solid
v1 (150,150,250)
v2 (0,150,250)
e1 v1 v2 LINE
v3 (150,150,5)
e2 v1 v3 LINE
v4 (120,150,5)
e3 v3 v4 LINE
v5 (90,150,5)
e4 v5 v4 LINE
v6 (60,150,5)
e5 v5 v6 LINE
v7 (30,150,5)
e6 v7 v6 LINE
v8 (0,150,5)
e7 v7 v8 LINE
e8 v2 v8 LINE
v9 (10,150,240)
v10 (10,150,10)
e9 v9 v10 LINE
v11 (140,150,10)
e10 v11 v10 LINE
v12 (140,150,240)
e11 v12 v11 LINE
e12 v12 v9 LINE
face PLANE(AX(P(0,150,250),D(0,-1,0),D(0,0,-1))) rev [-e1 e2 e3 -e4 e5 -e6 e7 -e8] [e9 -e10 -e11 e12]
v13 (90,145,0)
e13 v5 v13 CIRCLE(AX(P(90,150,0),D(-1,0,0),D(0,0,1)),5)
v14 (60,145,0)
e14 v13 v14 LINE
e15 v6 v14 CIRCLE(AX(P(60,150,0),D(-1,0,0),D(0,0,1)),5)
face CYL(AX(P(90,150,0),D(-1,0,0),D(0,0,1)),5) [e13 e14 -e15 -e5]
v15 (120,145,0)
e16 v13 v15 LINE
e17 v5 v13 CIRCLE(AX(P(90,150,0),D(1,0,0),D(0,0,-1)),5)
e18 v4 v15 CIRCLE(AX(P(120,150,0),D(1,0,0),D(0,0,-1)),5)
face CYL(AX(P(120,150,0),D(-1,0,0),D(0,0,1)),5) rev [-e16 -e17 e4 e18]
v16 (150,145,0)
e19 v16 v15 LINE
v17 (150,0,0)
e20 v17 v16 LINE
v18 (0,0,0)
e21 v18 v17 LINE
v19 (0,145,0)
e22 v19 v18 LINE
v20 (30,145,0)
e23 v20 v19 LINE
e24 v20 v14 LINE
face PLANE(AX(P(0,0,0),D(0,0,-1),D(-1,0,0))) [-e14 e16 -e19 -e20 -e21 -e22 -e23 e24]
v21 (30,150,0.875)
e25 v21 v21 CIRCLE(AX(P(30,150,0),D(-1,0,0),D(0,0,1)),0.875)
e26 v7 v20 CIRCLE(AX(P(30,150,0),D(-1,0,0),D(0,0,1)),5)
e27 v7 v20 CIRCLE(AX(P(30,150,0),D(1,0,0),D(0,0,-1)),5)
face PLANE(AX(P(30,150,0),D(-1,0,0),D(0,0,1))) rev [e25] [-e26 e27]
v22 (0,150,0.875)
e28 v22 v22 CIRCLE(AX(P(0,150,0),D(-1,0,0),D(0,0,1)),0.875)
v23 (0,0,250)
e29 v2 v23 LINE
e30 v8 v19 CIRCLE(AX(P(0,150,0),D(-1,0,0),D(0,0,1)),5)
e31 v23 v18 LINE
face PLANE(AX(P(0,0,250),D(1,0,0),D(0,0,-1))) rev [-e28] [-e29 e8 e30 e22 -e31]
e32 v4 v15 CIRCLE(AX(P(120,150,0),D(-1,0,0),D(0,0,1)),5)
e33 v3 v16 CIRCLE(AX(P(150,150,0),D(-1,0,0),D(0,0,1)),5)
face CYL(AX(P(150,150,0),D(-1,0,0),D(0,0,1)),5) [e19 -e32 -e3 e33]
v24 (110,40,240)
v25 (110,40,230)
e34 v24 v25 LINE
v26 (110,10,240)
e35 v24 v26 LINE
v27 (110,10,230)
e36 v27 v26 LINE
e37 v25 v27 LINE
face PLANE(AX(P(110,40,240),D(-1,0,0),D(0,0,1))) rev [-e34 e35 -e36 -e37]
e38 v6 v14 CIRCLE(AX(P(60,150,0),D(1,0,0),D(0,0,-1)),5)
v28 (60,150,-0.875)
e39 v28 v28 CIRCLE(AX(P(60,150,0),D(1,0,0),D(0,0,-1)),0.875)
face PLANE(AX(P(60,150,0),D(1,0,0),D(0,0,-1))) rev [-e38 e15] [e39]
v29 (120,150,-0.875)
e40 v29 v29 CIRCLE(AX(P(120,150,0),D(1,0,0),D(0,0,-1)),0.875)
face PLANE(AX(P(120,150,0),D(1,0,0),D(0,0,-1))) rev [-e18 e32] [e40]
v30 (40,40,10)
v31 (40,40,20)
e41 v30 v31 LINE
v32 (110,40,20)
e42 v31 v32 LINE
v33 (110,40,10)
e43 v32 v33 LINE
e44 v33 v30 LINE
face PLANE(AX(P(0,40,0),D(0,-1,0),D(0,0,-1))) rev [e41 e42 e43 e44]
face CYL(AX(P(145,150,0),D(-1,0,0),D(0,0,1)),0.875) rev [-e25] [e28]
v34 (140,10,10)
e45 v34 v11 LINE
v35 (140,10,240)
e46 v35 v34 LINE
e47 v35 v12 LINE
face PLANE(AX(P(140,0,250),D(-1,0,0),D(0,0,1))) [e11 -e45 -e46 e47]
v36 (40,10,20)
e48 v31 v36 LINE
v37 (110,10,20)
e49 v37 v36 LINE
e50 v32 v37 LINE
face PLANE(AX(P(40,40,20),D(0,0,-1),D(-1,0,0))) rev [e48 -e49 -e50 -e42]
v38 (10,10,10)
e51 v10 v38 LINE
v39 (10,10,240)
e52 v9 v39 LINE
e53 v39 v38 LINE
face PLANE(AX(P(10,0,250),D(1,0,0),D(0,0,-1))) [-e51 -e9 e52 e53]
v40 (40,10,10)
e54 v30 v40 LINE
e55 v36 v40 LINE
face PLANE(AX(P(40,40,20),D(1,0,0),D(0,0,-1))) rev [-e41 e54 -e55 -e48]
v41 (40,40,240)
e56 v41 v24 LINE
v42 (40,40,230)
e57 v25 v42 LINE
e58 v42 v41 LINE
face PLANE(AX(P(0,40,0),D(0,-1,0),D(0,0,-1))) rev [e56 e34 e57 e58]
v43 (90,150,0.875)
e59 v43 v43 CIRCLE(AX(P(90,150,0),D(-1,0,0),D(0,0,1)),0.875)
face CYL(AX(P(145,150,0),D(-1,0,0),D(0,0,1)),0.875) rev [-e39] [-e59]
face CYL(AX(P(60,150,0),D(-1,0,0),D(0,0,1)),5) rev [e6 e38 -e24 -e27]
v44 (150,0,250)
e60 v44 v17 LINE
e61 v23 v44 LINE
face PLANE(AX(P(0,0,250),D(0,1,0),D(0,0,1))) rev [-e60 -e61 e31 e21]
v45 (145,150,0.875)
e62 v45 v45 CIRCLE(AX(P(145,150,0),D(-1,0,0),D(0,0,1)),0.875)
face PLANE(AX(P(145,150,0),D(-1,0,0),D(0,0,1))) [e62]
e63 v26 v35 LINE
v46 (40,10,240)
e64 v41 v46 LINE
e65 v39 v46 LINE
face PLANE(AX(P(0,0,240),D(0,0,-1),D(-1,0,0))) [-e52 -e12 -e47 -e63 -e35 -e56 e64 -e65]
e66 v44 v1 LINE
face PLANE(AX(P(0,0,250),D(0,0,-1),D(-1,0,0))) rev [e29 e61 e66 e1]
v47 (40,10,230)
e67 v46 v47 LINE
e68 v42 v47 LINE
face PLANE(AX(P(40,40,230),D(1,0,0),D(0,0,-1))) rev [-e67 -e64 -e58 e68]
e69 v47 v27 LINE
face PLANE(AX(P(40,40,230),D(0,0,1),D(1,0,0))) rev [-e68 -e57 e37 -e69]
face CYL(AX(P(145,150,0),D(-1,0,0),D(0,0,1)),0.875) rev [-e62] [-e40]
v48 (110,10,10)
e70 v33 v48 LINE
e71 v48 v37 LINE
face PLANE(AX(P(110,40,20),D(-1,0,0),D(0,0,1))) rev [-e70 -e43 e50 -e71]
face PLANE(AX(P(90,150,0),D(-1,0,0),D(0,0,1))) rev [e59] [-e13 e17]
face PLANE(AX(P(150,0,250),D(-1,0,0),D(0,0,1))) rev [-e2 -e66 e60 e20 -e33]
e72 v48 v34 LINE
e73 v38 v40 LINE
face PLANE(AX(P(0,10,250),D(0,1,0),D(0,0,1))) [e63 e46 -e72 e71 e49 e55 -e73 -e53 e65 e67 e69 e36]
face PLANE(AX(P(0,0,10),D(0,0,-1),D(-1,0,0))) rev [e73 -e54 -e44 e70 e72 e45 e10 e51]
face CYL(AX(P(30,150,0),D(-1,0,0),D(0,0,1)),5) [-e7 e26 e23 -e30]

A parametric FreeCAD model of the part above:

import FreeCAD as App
import Part
import Sketcher
from FreeCAD import Vector
Q = App.Units.Quantity


def faces_at(feature, points):
    """Names of the faces that lie closest to the given points."""
    faces = feature.Shape.Faces
    near = lambda p: min(range(len(faces)), key=lambda i: faces[i].distToShape(Part.Vertex(*p))[0])
    return sorted({f"Face{near(p) + 1}" for p in points})

doc = App.newDocument("Part")
params = doc.addObject("Spreadsheet::Sheet", "Params")
for row, (alias, value) in enumerate([
    ("sketch1_width", "150 mm"),
    ("pad1_length", "250 mm"),
    ("thickness_wall", "10 mm"),
    ("sketch2_width", "120 mm"),
    ("sketch2_width2", "110 mm"),
    ("sketch2_height", "220 mm"),
    ("sketch2_height2", "210 mm"),
    ("pad2_length", "0.001 mm"),
    ("sketch3_width", "70 mm"),
    ("sketch3_height", "10 mm"),
    ("pad3_length", "40 mm"),
    ("sketch4_diameter", "10 mm"),
    ("pad4_length", "30 mm"),
    ("sketch5_diameter", "10 mm"),
    ("pocket1_length", "30 mm"),
    ("sketch6_diameter", "10 mm"),
    ("pad5_length", "30 mm"),
    ("sketch7_diameter", "10 mm"),
    ("pocket2_length", "30 mm"),
    ("sketch8_diameter", "10 mm"),
    ("pad6_length", "30 mm"),
    ("sketch9_diameter", "1.75 mm"),
    ("pocket3_length", "145 mm"),
], start=1):
    params.set(f"A{row}", alias)
    params.set(f"B{row}", "=" + value)
    params.setAlias(f"B{row}", alias)

body = doc.addObject("PartDesign::Body", "Body")

sketch1 = doc.addObject("Sketcher::SketchObject", "Sketch")
body.addObject(sketch1)
sketch1.AttachmentSupport = (doc.XY_Plane, [""])
sketch1.MapMode = "FlatFace"
sketch1.addGeometry([
    Part.LineSegment(Vector(0, 150, 0), Vector(0, 0, 0)),
    Part.LineSegment(Vector(0, 0, 0), Vector(150, 0, 0)),
    Part.LineSegment(Vector(150, 0, 0), Vector(150, 150, 0)),
    Part.LineSegment(Vector(150, 150, 0), Vector(0, 150, 0)),
], False)
sketch1.addConstraint([
    Sketcher.Constraint("Coincident", 0, 2, 1, 1),
    Sketcher.Constraint("Coincident", 1, 2, 2, 1),
    Sketcher.Constraint("Coincident", 2, 2, 3, 1),
    Sketcher.Constraint("Coincident", 3, 2, 0, 1),
    Sketcher.Constraint("Vertical", 0),
    Sketcher.Constraint("Horizontal", 1),
    Sketcher.Constraint("Vertical", 2),
    Sketcher.Constraint("Horizontal", 3),
    Sketcher.Constraint("Coincident", 0, 2, -1, 1),
    Sketcher.Constraint("Equal", 3, 0),
    Sketcher.Constraint("DistanceX", 1, 1, 1, 2, Q("150 mm")),
])
sketch1.setExpression("Constraints[10]", "Params.sketch1_width")
pad1 = doc.addObject("PartDesign::Pad", "Pad")
body.addObject(pad1)
pad1.Profile = sketch1
pad1.setExpression("Length", "Params.pad1_length")
doc.recompute()

thickness = doc.addObject("PartDesign::Thickness", "Thickness")
body.addObject(thickness)
thickness.Base = (pad1, faces_at(pad1, [(75, 150, 125)]))
thickness.setExpression("Value", "Params.thickness_wall")
thickness.Reversed = True
thickness.Join = "Intersection"

sketch2 = doc.addObject("Sketcher::SketchObject", "Sketch001")
body.addObject(sketch2)
sketch2.AttachmentSupport = (doc.XZ_Plane, [""])
sketch2.MapMode = "FlatFace"
sketch2.addGeometry([
    Part.LineSegment(Vector(15, 15, 0), Vector(15, 235, 0)),
    Part.LineSegment(Vector(15, 235, 0), Vector(135, 235, 0)),
    Part.LineSegment(Vector(135, 235, 0), Vector(135, 15, 0)),
    Part.LineSegment(Vector(135, 15, 0), Vector(15, 15, 0)),
    Part.LineSegment(Vector(130, 230, 0), Vector(20, 230, 0)),
    Part.LineSegment(Vector(20, 230, 0), Vector(20, 20, 0)),
    Part.LineSegment(Vector(20, 20, 0), Vector(130, 20, 0)),
    Part.LineSegment(Vector(130, 20, 0), Vector(130, 230, 0)),
], False)
sketch2.addConstraint([
    Sketcher.Constraint("Coincident", 0, 2, 1, 1),
    Sketcher.Constraint("Coincident", 1, 2, 2, 1),
    Sketcher.Constraint("Coincident", 2, 2, 3, 1),
    Sketcher.Constraint("Coincident", 3, 2, 0, 1),
    Sketcher.Constraint("Coincident", 4, 2, 5, 1),
    Sketcher.Constraint("Coincident", 5, 2, 6, 1),
    Sketcher.Constraint("Coincident", 6, 2, 7, 1),
    Sketcher.Constraint("Coincident", 7, 2, 4, 1),
    Sketcher.Constraint("Vertical", 0),
    Sketcher.Constraint("Horizontal", 1),
    Sketcher.Constraint("Vertical", 2),
    Sketcher.Constraint("Horizontal", 3),
    Sketcher.Constraint("Horizontal", 4),
    Sketcher.Constraint("Vertical", 5),
    Sketcher.Constraint("Horizontal", 6),
    Sketcher.Constraint("Vertical", 7),
    Sketcher.Constraint("DistanceX", 1, 1, 1, 2, Q("120 mm")),
    Sketcher.Constraint("DistanceX", 4, 2, 4, 1, Q("110 mm")),
    Sketcher.Constraint("DistanceY", 0, 1, 0, 2, Q("220 mm")),
    Sketcher.Constraint("DistanceY", 5, 2, 5, 1, Q("210 mm")),
    Sketcher.Constraint("DistanceX", -1, 1, 0, 2, Q("15 mm")),
    Sketcher.Constraint("DistanceY", -1, 1, 0, 2, Q("235 mm")),
    Sketcher.Constraint("DistanceX", -1, 1, 4, 2, Q("20 mm")),
    Sketcher.Constraint("DistanceY", -1, 1, 4, 2, Q("230 mm")),
])
sketch2.setExpression("Constraints[16]", "Params.sketch2_width")
sketch2.setExpression("Constraints[17]", "Params.sketch2_width2")
sketch2.setExpression("Constraints[18]", "Params.sketch2_height")
sketch2.setExpression("Constraints[19]", "Params.sketch2_height2")
pad2 = doc.addObject("PartDesign::Pad", "Pad001")
body.addObject(pad2)
pad2.Profile = sketch2
pad2.setExpression("Length", "Params.pad2_length")
pad2.Reversed = True

sketch3 = doc.addObject("Sketcher::SketchObject", "Sketch002")
body.addObject(sketch3)
sketch3.AttachmentSupport = (doc.XZ_Plane, [""])
sketch3.MapMode = "FlatFace"
sketch3.addGeometry([
    Part.LineSegment(Vector(40, 230, 0), Vector(40, 240, 0)),
    Part.LineSegment(Vector(40, 240, 0), Vector(110, 240, 0)),
    Part.LineSegment(Vector(110, 240, 0), Vector(110, 230, 0)),
    Part.LineSegment(Vector(110, 230, 0), Vector(40, 230, 0)),
    Part.LineSegment(Vector(40, 10, 0), Vector(40, 20, 0)),
    Part.LineSegment(Vector(40, 20, 0), Vector(110, 20, 0)),
    Part.LineSegment(Vector(110, 20, 0), Vector(110, 10, 0)),
    Part.LineSegment(Vector(110, 10, 0), Vector(40, 10, 0)),
], False)
sketch3.addConstraint([
    Sketcher.Constraint("Coincident", 0, 2, 1, 1),
    Sketcher.Constraint("Coincident", 1, 2, 2, 1),
    Sketcher.Constraint("Coincident", 2, 2, 3, 1),
    Sketcher.Constraint("Coincident", 3, 2, 0, 1),
    Sketcher.Constraint("Coincident", 4, 2, 5, 1),
    Sketcher.Constraint("Coincident", 5, 2, 6, 1),
    Sketcher.Constraint("Coincident", 6, 2, 7, 1),
    Sketcher.Constraint("Coincident", 7, 2, 4, 1),
    Sketcher.Constraint("Vertical", 0),
    Sketcher.Constraint("Horizontal", 1),
    Sketcher.Constraint("Vertical", 2),
    Sketcher.Constraint("Horizontal", 3),
    Sketcher.Constraint("Vertical", 4),
    Sketcher.Constraint("Horizontal", 5),
    Sketcher.Constraint("Vertical", 6),
    Sketcher.Constraint("Horizontal", 7),
    Sketcher.Constraint("Vertical", 3, 2, 4, 2),
    Sketcher.Constraint("Vertical", 2, 2, 5, 2),
    Sketcher.Constraint("Equal", 2, 4),
    Sketcher.Constraint("DistanceX", 1, 1, 1, 2, Q("70 mm")),
    Sketcher.Constraint("DistanceY", 0, 1, 0, 2, Q("10 mm")),
    Sketcher.Constraint("DistanceX", -1, 1, 0, 2, Q("40 mm")),
    Sketcher.Constraint("DistanceY", -1, 1, 0, 2, Q("240 mm")),
    Sketcher.Constraint("DistanceY", -1, 1, 4, 2, Q("20 mm")),
])
sketch3.setExpression("Constraints[19]", "Params.sketch3_width")
sketch3.setExpression("Constraints[20]", "Params.sketch3_height")
pad3 = doc.addObject("PartDesign::Pad", "Pad002")
body.addObject(pad3)
pad3.Profile = sketch3
pad3.setExpression("Length", "Params.pad3_length")
pad3.Reversed = True

sketch4 = doc.addObject("Sketcher::SketchObject", "Sketch003")
body.addObject(sketch4)
sketch4.AttachmentSupport = (doc.YZ_Plane, [""])
sketch4.MapMode = "FlatFace"
sketch4.addGeometry(Part.Circle(Vector(150, 0, 0), Vector(0, 0, 1), 5), False)
sketch4.addConstraint([
    Sketcher.Constraint("PointOnObject", 0, 3, -1),
    Sketcher.Constraint("Diameter", 0, Q("10 mm")),
    Sketcher.Constraint("DistanceX", -1, 1, 0, 3, Q("150 mm")),
])
sketch4.setExpression("Constraints[1]", "Params.sketch4_diameter")
pad4 = doc.addObject("PartDesign::Pad", "Pad003")
body.addObject(pad4)
pad4.Profile = sketch4
pad4.setExpression("Length", "Params.pad4_length")

sketch5 = doc.addObject("Sketcher::SketchObject", "Sketch004")
body.addObject(sketch5)
sketch5.AttachmentSupport = (doc.YZ_Plane, [""])
sketch5.MapMode = "FlatFace"
sketch5.AttachmentOffset = App.Placement(Vector(0, 0, 30), App.Rotation())
sketch5.addGeometry(Part.Circle(Vector(150, 0, 0), Vector(0, 0, 1), 5), False)
sketch5.addConstraint([
    Sketcher.Constraint("PointOnObject", 0, 3, -1),
    Sketcher.Constraint("Diameter", 0, Q("10 mm")),
    Sketcher.Constraint("DistanceX", -1, 1, 0, 3, Q("150 mm")),
])
sketch5.setExpression("Constraints[1]", "Params.sketch5_diameter")
pocket1 = doc.addObject("PartDesign::Pocket", "Pocket")
body.addObject(pocket1)
pocket1.Profile = sketch5
pocket1.setExpression("Length", "Params.pocket1_length")
pocket1.Reversed = True

sketch6 = doc.addObject("Sketcher::SketchObject", "Sketch005")
body.addObject(sketch6)
sketch6.AttachmentSupport = (doc.YZ_Plane, [""])
sketch6.MapMode = "FlatFace"
sketch6.AttachmentOffset = App.Placement(Vector(0, 0, 60), App.Rotation())
sketch6.addGeometry(Part.Circle(Vector(150, 0, 0), Vector(0, 0, 1), 5), False)
sketch6.addConstraint([
    Sketcher.Constraint("PointOnObject", 0, 3, -1),
    Sketcher.Constraint("Diameter", 0, Q("10 mm")),
    Sketcher.Constraint("DistanceX", -1, 1, 0, 3, Q("150 mm")),
])
sketch6.setExpression("Constraints[1]", "Params.sketch6_diameter")
pad5 = doc.addObject("PartDesign::Pad", "Pad004")
body.addObject(pad5)
pad5.Profile = sketch6
pad5.setExpression("Length", "Params.pad5_length")

sketch7 = doc.addObject("Sketcher::SketchObject", "Sketch006")
body.addObject(sketch7)
sketch7.AttachmentSupport = (doc.YZ_Plane, [""])
sketch7.MapMode = "FlatFace"
sketch7.AttachmentOffset = App.Placement(Vector(0, 0, 90), App.Rotation())
sketch7.addGeometry(Part.Circle(Vector(150, 0, 0), Vector(0, 0, 1), 5), False)
sketch7.addConstraint([
    Sketcher.Constraint("PointOnObject", 0, 3, -1),
    Sketcher.Constraint("Diameter", 0, Q("10 mm")),
    Sketcher.Constraint("DistanceX", -1, 1, 0, 3, Q("150 mm")),
])
sketch7.setExpression("Constraints[1]", "Params.sketch7_diameter")
pocket2 = doc.addObject("PartDesign::Pocket", "Pocket001")
body.addObject(pocket2)
pocket2.Profile = sketch7
pocket2.setExpression("Length", "Params.pocket2_length")
pocket2.Reversed = True

sketch8 = doc.addObject("Sketcher::SketchObject", "Sketch007")
body.addObject(sketch8)
sketch8.AttachmentSupport = (doc.YZ_Plane, [""])
sketch8.MapMode = "FlatFace"
sketch8.AttachmentOffset = App.Placement(Vector(0, 0, 120), App.Rotation())
sketch8.addGeometry(Part.Circle(Vector(150, 0, 0), Vector(0, 0, 1), 5), False)
sketch8.addConstraint([
    Sketcher.Constraint("PointOnObject", 0, 3, -1),
    Sketcher.Constraint("Diameter", 0, Q("10 mm")),
    Sketcher.Constraint("DistanceX", -1, 1, 0, 3, Q("150 mm")),
])
sketch8.setExpression("Constraints[1]", "Params.sketch8_diameter")
pad6 = doc.addObject("PartDesign::Pad", "Pad005")
body.addObject(pad6)
pad6.Profile = sketch8
pad6.setExpression("Length", "Params.pad6_length")

sketch9 = doc.addObject("Sketcher::SketchObject", "Sketch008")
body.addObject(sketch9)
sketch9.AttachmentSupport = (doc.YZ_Plane, [""])
sketch9.MapMode = "FlatFace"
sketch9.addGeometry(Part.Circle(Vector(150, 0, 0), Vector(0, 0, 1), 0.9), False)
sketch9.addConstraint([
    Sketcher.Constraint("PointOnObject", 0, 3, -1),
    Sketcher.Constraint("Diameter", 0, Q("1.75 mm")),
    Sketcher.Constraint("DistanceX", -1, 1, 0, 3, Q("150 mm")),
])
sketch9.setExpression("Constraints[1]", "Params.sketch9_diameter")
pocket3 = doc.addObject("PartDesign::Pocket", "Pocket002")
body.addObject(pocket3)
pocket3.Profile = sketch9
pocket3.setExpression("Length", "Params.pocket3_length")
pocket3.Reversed = True

doc.recompute()
